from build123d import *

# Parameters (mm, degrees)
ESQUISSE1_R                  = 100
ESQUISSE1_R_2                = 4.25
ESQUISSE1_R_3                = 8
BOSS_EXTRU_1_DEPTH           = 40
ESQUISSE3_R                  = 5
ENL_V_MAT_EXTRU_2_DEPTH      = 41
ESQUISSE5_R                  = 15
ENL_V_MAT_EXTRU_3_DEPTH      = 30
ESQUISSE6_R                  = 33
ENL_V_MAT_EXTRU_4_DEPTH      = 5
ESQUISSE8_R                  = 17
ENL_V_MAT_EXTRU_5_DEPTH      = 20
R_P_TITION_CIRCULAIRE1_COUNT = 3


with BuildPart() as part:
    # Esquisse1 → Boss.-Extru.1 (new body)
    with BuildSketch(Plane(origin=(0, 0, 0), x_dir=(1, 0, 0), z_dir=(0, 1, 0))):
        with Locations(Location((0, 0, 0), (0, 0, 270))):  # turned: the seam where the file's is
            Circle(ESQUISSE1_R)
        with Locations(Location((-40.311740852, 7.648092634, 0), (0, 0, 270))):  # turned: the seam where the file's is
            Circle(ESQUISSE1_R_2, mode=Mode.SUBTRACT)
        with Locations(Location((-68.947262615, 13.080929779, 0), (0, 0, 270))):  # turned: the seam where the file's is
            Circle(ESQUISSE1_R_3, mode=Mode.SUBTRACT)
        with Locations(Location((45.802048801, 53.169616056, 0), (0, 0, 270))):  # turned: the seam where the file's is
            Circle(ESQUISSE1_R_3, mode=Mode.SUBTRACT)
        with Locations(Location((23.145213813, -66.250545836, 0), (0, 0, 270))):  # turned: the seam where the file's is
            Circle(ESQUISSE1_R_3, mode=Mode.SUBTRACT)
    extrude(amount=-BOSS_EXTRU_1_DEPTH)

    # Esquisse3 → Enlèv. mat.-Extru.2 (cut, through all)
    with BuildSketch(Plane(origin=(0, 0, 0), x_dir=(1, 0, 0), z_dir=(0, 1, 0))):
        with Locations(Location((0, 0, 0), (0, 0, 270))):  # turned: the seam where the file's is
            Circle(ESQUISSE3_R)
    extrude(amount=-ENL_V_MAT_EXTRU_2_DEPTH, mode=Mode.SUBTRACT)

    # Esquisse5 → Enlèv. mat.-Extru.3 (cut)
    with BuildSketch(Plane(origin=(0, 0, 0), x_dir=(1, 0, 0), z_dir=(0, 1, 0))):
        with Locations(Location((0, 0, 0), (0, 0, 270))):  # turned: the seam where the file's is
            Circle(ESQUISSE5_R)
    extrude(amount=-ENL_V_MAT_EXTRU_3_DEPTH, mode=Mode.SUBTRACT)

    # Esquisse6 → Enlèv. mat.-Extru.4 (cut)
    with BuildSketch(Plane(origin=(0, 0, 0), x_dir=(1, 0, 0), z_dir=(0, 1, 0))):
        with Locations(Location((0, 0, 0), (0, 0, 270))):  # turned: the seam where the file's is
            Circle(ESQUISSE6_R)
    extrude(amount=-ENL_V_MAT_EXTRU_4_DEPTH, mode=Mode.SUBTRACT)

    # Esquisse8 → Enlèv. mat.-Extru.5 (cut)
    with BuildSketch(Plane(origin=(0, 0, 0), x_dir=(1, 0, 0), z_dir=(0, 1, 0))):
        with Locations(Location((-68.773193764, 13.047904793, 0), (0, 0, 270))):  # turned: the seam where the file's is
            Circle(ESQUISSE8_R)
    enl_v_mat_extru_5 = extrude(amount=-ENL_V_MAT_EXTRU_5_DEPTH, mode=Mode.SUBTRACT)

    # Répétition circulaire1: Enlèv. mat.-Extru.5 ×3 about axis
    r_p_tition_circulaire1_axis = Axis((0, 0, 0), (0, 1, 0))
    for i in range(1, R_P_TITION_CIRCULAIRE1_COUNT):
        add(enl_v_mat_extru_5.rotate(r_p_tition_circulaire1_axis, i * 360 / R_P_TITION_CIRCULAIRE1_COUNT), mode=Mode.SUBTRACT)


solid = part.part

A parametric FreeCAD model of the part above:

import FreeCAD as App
import Part
import Sketcher

V = App.Vector

doc = App.newDocument("Part")
params = doc.addObject("Spreadsheet::Sheet", "Params")
for row, (alias, value) in enumerate([
    ("sketch1_diameter", "200 mm"),
    ("sketch1_diameter2", "16 mm"),
    ("sketch1_diameter3", "8.5 mm"),
    ("pad1_length", "40 mm"),
    ("sketch2_diameter", "10 mm"),
    ("sketch3_diameter", "30 mm"),
    ("pocket2_length", "30 mm"),
    ("sketch4_diameter", "66 mm"),
    ("pocket3_length", "5 mm"),
    ("sketch5_diameter", "34 mm"),
    ("pocket4_length", "20 mm"),
], start=1):
    params.set(f"A{row}", alias)
    params.set(f"B{row}", "=" + value)
    params.setAlias(f"B{row}", alias)

body = doc.addObject("PartDesign::Body", "Body")

sketch1 = doc.addObject("Sketcher::SketchObject", "Sketch")
body.addObject(sketch1)
sketch1.AttachmentSupport = (doc.XZ_Plane, [""])
sketch1.MapMode = "FlatFace"
sketch1.addGeometry([
    Part.Circle(V(0, 0, 0), V(0, 0, 1), 100),
    Part.Circle(V(-68.9, -13.1, 0), V(0, 0, 1), 8),
    Part.Circle(V(-40.3, -7.6, 0), V(0, 0, 1), 4.2),
    Part.Circle(V(45.8, -53.2, 0), V(0, 0, 1), 8),
    Part.Circle(V(23.1, 66.3, 0), V(0, 0, 1), 8),
], False)
sketch1.addConstraint([
    Sketcher.Constraint("Coincident", 0, 3, -1, 1),
    Sketcher.Constraint("Equal", 1, 3),
    Sketcher.Constraint("Equal", 3, 4),
    Sketcher.Constraint("Diameter", 0, 200.0),
    Sketcher.Constraint("Diameter", 1, 16.0),
    Sketcher.Constraint("Diameter", 2, 8.5),
    Sketcher.Constraint("DistanceY", 1, 3, -1, 1, 13.08093),
    Sketcher.Constraint("DistanceX", 2, 3, -1, 1, 40.311741),
    Sketcher.Constraint("DistanceX", -1, 1, 3, 3, 45.802049),
    Sketcher.Constraint("DistanceX", 1, 3, 2, 3, 28.635522),
    Sketcher.Constraint("DistanceY", 2, 3, 4, 3, 73.898638),
    Sketcher.Constraint("DistanceY", 3, 3, 4, 3, 119.420162),
    Sketcher.Constraint("DistanceY", 2, 3, -1, 1, 7.648093),
    Sketcher.Constraint("DistanceX", -1, 1, 4, 3, 23.145214),
])
sketch1.setExpression("Constraints[3]", "Params.sketch1_diameter")
sketch1.setExpression("Constraints[4]", "Params.sketch1_diameter2")
sketch1.setExpression("Constraints[5]", "Params.sketch1_diameter3")
pad1 = doc.addObject("PartDesign::Pad", "Pad")
body.addObject(pad1)
pad1.Profile = sketch1
pad1.setExpression("Length", "Params.pad1_length")

sketch2 = doc.addObject("Sketcher::SketchObject", "Sketch001")
body.addObject(sketch2)
sketch2.AttachmentSupport = (doc.XZ_Plane, [""])
sketch2.MapMode = "FlatFace"
sketch2.addGeometry(Part.Circle(V(0, 0, 0), V(0, 0, 1), 5), False)
sketch2.addConstraint([
    Sketcher.Constraint("Coincident", 0, 3, -1, 1),
    Sketcher.Constraint("Diameter", 0, 10.0),
])
sketch2.setExpression("Constraints[1]", "Params.sketch2_diameter")
pocket1 = doc.addObject("PartDesign::Pocket", "Pocket")
body.addObject(pocket1)
pocket1.Profile = sketch2
pocket1.Type = "ThroughAll"
pocket1.Reversed = True

sketch3 = doc.addObject("Sketcher::SketchObject", "Sketch002")
body.addObject(sketch3)
sketch3.AttachmentSupport = (doc.XZ_Plane, [""])
sketch3.MapMode = "FlatFace"
sketch3.addGeometry(Part.Circle(V(0, 0, 0), V(0, 0, 1), 15), False)
sketch3.addConstraint([
    Sketcher.Constraint("Coincident", 0, 3, -1, 1),
    Sketcher.Constraint("Diameter", 0, 30.0),
])
sketch3.setExpression("Constraints[1]", "Params.sketch3_diameter")
pocket2 = doc.addObject("PartDesign::Pocket", "Pocket001")
body.addObject(pocket2)
pocket2.Profile = sketch3
pocket2.setExpression("Length", "Params.pocket2_length")
pocket2.Reversed = True

sketch4 = doc.addObject("Sketcher::SketchObject", "Sketch003")
body.addObject(sketch4)
sketch4.AttachmentSupport = (doc.XZ_Plane, [""])
sketch4.MapMode = "FlatFace"
sketch4.addGeometry(Part.Circle(V(0, 0, 0), V(0, 0, 1), 33), False)
sketch4.addConstraint([
    Sketcher.Constraint("Coincident", 0, 3, -1, 1),
    Sketcher.Constraint("Diameter", 0, 66.0),
])
sketch4.setExpression("Constraints[1]", "Params.sketch4_diameter")
pocket3 = doc.addObject("PartDesign::Pocket", "Pocket002")
body.addObject(pocket3)
pocket3.Profile = sketch4
pocket3.setExpression("Length", "Params.pocket3_length")
pocket3.Reversed = True

sketch5 = doc.addObject("Sketcher::SketchObject", "Sketch004")
body.addObject(sketch5)
sketch5.AttachmentSupport = (doc.XZ_Plane, [""])
sketch5.MapMode = "FlatFace"
sketch5.addGeometry(Part.Circle(V(-69, -13, 0), V(0, 0, 1), 17), False)
sketch5.addConstraint([
    Sketcher.Constraint("Diameter", 0, 34.0),
    Sketcher.Constraint("DistanceX", 0, 3, -1, 1, 68.773194),
    Sketcher.Constraint("DistanceY", 0, 3, -1, 1, 13.047905),
])
sketch5.setExpression("Constraints[0]", "Params.sketch5_diameter")
pocket4 = doc.addObject("PartDesign::Pocket", "Pocket003")
body.addObject(pocket4)
pocket4.Profile = sketch5
pocket4.setExpression("Length", "Params.pocket4_length")
pocket4.Reversed = True
doc.recompute()

polarpattern = doc.addObject("PartDesign::PolarPattern", "PolarPattern")
body.addObject(polarpattern)
polarpattern.Originals = [pocket4]
polarpattern.Axis = (doc.Y_Axis, [""])
polarpattern.Angle = 360
polarpattern.Occurrences = 3
body.Tip = polarpattern

doc.recompute()
